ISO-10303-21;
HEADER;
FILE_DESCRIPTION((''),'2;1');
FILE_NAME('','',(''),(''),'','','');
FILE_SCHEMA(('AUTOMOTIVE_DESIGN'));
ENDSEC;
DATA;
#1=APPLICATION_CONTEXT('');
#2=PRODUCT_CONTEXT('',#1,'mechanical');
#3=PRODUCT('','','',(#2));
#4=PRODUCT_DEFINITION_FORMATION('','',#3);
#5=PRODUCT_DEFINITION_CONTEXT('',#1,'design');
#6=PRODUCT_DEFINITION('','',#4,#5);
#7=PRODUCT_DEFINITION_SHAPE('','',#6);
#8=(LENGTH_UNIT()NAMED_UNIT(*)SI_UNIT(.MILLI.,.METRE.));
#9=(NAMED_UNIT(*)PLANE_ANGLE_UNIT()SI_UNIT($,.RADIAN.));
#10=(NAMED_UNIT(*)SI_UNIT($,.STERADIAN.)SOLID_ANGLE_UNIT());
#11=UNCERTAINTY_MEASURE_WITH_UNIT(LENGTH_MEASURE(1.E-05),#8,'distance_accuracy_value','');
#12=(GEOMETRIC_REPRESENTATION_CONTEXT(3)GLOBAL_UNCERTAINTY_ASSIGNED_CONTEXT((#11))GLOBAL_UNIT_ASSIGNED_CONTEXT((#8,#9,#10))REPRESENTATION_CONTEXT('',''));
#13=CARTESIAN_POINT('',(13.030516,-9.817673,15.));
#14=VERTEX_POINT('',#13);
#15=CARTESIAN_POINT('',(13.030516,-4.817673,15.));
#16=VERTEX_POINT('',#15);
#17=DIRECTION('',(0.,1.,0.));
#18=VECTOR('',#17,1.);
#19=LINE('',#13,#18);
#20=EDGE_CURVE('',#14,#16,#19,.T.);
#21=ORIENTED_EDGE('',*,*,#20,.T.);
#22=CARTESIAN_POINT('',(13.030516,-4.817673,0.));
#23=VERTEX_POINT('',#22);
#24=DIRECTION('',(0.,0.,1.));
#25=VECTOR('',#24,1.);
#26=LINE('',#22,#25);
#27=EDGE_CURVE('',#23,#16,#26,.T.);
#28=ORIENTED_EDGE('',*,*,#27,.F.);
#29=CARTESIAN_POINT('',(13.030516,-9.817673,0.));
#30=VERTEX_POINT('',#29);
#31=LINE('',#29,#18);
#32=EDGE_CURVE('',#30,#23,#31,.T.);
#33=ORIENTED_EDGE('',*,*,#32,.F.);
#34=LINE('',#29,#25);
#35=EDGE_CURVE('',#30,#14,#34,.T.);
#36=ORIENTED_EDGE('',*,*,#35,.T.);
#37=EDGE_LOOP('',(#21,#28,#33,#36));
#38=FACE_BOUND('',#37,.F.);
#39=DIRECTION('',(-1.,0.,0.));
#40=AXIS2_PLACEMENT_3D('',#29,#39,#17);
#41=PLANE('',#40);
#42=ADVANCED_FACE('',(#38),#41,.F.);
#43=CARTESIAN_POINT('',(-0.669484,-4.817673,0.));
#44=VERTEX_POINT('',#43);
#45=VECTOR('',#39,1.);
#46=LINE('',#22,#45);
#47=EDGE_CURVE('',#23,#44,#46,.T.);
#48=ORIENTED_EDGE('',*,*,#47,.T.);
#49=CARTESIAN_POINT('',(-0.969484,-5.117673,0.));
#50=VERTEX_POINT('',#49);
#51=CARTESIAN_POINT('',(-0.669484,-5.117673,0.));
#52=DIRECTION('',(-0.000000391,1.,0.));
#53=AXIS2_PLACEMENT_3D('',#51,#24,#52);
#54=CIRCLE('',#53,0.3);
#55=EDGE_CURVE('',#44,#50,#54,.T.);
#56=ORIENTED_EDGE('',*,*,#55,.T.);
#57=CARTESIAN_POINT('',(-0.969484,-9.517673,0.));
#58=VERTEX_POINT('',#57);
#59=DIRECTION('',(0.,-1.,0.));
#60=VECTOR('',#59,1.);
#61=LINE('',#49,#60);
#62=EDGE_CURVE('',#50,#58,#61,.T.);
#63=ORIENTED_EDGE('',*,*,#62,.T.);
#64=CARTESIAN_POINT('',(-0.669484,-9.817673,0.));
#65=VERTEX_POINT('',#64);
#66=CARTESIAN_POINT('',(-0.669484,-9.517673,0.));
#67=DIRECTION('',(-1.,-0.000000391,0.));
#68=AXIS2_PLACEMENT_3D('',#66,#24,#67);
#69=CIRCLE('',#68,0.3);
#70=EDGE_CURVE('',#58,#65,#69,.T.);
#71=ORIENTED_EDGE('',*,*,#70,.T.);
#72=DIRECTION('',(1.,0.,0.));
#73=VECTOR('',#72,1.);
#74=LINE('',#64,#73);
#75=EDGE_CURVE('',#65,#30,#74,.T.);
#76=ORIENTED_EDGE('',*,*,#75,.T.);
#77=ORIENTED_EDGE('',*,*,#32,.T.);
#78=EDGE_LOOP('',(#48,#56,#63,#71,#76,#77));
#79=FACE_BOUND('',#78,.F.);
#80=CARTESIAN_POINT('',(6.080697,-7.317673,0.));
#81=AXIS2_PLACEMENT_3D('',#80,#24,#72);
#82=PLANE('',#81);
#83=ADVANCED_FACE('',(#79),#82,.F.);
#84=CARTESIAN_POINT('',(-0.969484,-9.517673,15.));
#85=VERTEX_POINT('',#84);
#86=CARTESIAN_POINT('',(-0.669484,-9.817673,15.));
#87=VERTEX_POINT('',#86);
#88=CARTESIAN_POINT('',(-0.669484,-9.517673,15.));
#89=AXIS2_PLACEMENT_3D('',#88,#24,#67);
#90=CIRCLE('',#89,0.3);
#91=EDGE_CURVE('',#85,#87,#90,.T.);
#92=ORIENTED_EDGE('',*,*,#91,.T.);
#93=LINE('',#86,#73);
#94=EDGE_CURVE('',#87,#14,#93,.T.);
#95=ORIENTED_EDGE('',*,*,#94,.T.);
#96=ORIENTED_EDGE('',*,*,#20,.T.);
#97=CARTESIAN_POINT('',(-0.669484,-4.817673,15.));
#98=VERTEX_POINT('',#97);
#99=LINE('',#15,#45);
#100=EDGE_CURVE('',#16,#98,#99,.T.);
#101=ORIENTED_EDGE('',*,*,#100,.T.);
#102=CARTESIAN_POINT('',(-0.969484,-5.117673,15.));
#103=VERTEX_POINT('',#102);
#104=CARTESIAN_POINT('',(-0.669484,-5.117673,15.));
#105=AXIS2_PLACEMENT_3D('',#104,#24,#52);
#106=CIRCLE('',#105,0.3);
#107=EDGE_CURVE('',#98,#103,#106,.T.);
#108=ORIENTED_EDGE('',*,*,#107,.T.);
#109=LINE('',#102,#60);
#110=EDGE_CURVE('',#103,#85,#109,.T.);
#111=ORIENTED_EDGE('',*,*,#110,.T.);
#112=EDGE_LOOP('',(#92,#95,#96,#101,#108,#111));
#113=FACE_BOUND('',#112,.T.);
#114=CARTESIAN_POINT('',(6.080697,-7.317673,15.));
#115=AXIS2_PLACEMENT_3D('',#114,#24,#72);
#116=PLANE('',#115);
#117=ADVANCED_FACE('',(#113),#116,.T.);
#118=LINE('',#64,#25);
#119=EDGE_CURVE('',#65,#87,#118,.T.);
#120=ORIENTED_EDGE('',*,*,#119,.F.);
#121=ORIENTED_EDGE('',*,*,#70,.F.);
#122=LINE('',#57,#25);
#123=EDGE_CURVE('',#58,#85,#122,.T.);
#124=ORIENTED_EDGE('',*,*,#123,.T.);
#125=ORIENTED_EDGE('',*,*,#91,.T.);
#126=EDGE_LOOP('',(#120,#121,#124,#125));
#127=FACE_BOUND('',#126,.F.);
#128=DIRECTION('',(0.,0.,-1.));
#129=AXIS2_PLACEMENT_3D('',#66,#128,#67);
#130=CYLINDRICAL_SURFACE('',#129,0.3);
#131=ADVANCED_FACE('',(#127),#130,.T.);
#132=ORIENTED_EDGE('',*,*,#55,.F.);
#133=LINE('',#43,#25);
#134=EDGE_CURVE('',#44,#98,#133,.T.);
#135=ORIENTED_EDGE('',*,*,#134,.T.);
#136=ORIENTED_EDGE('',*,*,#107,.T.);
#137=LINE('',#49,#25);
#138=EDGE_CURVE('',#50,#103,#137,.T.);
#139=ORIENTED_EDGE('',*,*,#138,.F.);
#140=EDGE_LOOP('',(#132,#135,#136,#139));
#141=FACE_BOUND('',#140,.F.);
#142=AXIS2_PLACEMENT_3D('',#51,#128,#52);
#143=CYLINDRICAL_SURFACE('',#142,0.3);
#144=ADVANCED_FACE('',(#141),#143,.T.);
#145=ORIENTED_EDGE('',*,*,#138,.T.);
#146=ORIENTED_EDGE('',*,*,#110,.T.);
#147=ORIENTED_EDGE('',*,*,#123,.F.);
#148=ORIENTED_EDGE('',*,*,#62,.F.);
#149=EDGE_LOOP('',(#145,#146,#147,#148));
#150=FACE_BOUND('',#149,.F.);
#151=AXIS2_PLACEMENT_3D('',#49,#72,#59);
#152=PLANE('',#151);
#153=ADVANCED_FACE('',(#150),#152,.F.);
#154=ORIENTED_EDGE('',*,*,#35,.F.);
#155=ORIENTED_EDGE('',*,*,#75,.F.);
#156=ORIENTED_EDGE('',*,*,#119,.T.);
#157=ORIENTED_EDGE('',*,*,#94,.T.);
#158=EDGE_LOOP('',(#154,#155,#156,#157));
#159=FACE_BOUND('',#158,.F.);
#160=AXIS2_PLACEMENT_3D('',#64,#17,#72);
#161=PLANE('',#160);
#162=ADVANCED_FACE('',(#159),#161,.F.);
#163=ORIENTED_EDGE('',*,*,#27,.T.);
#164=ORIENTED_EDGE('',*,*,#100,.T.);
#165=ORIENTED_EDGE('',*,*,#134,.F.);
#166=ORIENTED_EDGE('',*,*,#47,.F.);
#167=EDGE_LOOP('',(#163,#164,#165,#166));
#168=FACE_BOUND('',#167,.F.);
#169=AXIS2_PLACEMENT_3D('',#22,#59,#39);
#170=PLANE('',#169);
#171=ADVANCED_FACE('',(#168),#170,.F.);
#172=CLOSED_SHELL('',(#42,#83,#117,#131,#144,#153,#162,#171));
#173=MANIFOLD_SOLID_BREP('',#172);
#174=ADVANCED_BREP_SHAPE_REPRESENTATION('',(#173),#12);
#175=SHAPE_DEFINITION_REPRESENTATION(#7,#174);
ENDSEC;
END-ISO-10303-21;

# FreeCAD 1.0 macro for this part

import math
import FreeCAD as App
import Part
import Sketcher

V = App.Vector

doc = App.newDocument("Part")
body = doc.addObject("PartDesign::Body", "Body")

# Sketch on XY plane
sketch1 = body.newObject("Sketcher::SketchObject", "Sketch")
sketch1.AttachmentSupport = (doc.getObject("XY_Plane"), [""])
sketch1.MapMode = "FlatFace"
sketch1.addGeometry([
    Part.LineSegment(V(13.03, -4.82, 0), V(-0.67, -4.82, 0)),  # 0
    Part.ArcOfCircle(Part.Circle(V(-0.67, -5.12, 0), V(0, 0, 1), 0.3), math.radians(90), math.radians(180)),  # 1
    Part.LineSegment(V(-0.97, -5.12, 0), V(-0.97, -9.52, 0)),  # 2
    Part.ArcOfCircle(Part.Circle(V(-0.67, -9.52, 0), V(0, 0, 1), 0.3), math.radians(-180), math.radians(-90)),  # 3
    Part.LineSegment(V(-0.67, -9.82, 0), V(13.03, -9.82, 0)),  # 4
    Part.LineSegment(V(13.03, -9.82, 0), V(13.03, -4.82, 0)),  # 5
], False)
sketch1.addConstraint([
    Sketcher.Constraint("Tangent", 0, 2, 1, 1),
    Sketcher.Constraint("Tangent", 1, 2, 2, 1),
    Sketcher.Constraint("Tangent", 2, 2, 3, 1),
    Sketcher.Constraint("Tangent", 3, 2, 4, 1),
    Sketcher.Constraint("Coincident", 4, 2, 5, 1),
    Sketcher.Constraint("Coincident", 5, 2, 0, 1),
    Sketcher.Constraint("Horizontal", 0),
    Sketcher.Constraint("Vertical", 2),
    Sketcher.Constraint("Horizontal", 4),
    Sketcher.Constraint("Vertical", 5),
    Sketcher.Constraint("Equal", 1, 3),
    Sketcher.Constraint("Radius", 1, 0.3),
    Sketcher.Constraint("DistanceY", 5, 1, 5, 2, 5.0),
    Sketcher.Constraint("DistanceX", 0, 2, 0, 1, 13.7),
    Sketcher.Constraint("DistanceX", 1, 3, -1, 1, 0.669484),
    Sketcher.Constraint("DistanceY", 1, 3, -1, 1, 5.117673),
])
pad1 = body.newObject("PartDesign::Pad", "Pad")
pad1.Profile = sketch1
pad1.Length = 15

doc.recompute()
